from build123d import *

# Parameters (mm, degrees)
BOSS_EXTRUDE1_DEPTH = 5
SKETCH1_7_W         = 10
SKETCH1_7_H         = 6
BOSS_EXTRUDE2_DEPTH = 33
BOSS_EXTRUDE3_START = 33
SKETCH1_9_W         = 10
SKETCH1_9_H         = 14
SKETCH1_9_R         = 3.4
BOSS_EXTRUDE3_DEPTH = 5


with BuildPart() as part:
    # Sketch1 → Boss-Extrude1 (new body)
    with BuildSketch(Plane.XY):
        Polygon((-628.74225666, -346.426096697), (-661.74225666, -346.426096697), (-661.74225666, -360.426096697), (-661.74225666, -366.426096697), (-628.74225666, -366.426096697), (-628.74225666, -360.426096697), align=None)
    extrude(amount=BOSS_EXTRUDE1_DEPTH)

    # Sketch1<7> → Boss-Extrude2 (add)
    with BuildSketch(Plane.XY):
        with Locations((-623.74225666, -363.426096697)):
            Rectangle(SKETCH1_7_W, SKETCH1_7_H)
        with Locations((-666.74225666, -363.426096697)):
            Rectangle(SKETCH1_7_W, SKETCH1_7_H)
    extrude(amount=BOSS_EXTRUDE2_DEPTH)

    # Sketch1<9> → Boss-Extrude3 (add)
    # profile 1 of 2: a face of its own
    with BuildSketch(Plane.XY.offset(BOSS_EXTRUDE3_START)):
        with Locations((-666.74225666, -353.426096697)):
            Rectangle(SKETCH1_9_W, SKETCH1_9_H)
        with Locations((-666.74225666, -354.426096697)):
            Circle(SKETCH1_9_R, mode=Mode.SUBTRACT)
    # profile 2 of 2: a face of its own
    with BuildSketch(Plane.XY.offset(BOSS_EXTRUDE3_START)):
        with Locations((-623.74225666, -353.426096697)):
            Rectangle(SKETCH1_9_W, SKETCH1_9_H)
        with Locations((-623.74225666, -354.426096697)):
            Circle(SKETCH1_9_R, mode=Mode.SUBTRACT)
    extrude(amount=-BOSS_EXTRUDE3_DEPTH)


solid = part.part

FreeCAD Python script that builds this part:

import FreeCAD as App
import Part
import Sketcher
Q = App.Units.Quantity

doc = App.newDocument("Part")
body = doc.addObject("PartDesign::Body", "Body")

# Sketch on XY plane
sketch1 = body.newObject("Sketcher::SketchObject", "Sketch")
sketch1.AttachmentSupport = (doc.getObject("XY_Plane"), [""])
sketch1.MapMode = "FlatFace"
sketch1.addGeometry(Part.LineSegment(App.Vector(-628.742257, -346.426097, 0), App.Vector(-661.742257, -346.426097, 0)), False)
sketch1.addGeometry(Part.LineSegment(App.Vector(-661.742257, -346.426097, 0), App.Vector(-661.742257, -366.426097, 0)), False)
sketch1.addGeometry(Part.LineSegment(App.Vector(-661.742257, -366.426097, 0), App.Vector(-628.742257, -366.426097, 0)), False)
sketch1.addGeometry(Part.LineSegment(App.Vector(-628.742257, -366.426097, 0), App.Vector(-628.742257, -346.426097, 0)), False)
sketch1.addConstraint(Sketcher.Constraint("Coincident", 0, 2, 1, 1))
sketch1.addConstraint(Sketcher.Constraint("Coincident", 1, 2, 2, 1))
sketch1.addConstraint(Sketcher.Constraint("Coincident", 2, 2, 3, 1))
sketch1.addConstraint(Sketcher.Constraint("Coincident", 3, 2, 0, 1))
sketch1.addConstraint(Sketcher.Constraint("Horizontal", 0))
sketch1.addConstraint(Sketcher.Constraint("Vertical", 1))
sketch1.addConstraint(Sketcher.Constraint("Horizontal", 2))
sketch1.addConstraint(Sketcher.Constraint("Vertical", 3))
sketch1.addConstraint(Sketcher.Constraint("DistanceX", 0, 2, 0, 1, Q("33 mm")))
sketch1.addConstraint(Sketcher.Constraint("DistanceY", 1, 2, 1, 1, Q("20 mm")))
sketch1.addConstraint(Sketcher.Constraint("DistanceX", 0, 2, -1, 1, Q("661.742257 mm")))
sketch1.addConstraint(Sketcher.Constraint("DistanceY", 0, 2, -1, 1, Q("346.426097 mm")))
pad1 = body.newObject("PartDesign::Pad", "Pad")
pad1.Profile = sketch1
pad1.Length = 5

# Sketch on XY plane
sketch2 = body.newObject("Sketcher::SketchObject", "Sketch001")
sketch2.AttachmentSupport = (doc.getObject("XY_Plane"), [""])
sketch2.MapMode = "FlatFace"
sketch2.addGeometry(Part.LineSegment(App.Vector(-628.742257, -360.426097, 0), App.Vector(-628.742257, -366.426097, 0)), False)
sketch2.addGeometry(Part.LineSegment(App.Vector(-628.742257, -366.426097, 0), App.Vector(-618.742257, -366.426097, 0)), False)
sketch2.addGeometry(Part.LineSegment(App.Vector(-618.742257, -366.426097, 0), App.Vector(-618.742257, -360.426097, 0)), False)
sketch2.addGeometry(Part.LineSegment(App.Vector(-618.742257, -360.426097, 0), App.Vector(-628.742257, -360.426097, 0)), False)
sketch2.addGeometry(Part.LineSegment(App.Vector(-671.742257, -360.426097, 0), App.Vector(-671.742257, -366.426097, 0)), False)
sketch2.addGeometry(Part.LineSegment(App.Vector(-671.742257, -366.426097, 0), App.Vector(-661.742257, -366.426097, 0)), False)
sketch2.addGeometry(Part.LineSegment(App.Vector(-661.742257, -366.426097, 0), App.Vector(-661.742257, -360.426097, 0)), False)
sketch2.addGeometry(Part.LineSegment(App.Vector(-661.742257, -360.426097, 0), App.Vector(-671.742257, -360.426097, 0)), False)
sketch2.addConstraint(Sketcher.Constraint("Coincident", 0, 2, 1, 1))
sketch2.addConstraint(Sketcher.Constraint("Coincident", 1, 2, 2, 1))
sketch2.addConstraint(Sketcher.Constraint("Coincident", 2, 2, 3, 1))
sketch2.addConstraint(Sketcher.Constraint("Coincident", 3, 2, 0, 1))
sketch2.addConstraint(Sketcher.Constraint("Coincident", 4, 2, 5, 1))
sketch2.addConstraint(Sketcher.Constraint("Coincident", 5, 2, 6, 1))
sketch2.addConstraint(Sketcher.Constraint("Coincident", 6, 2, 7, 1))
sketch2.addConstraint(Sketcher.Constraint("Coincident", 7, 2, 4, 1))
sketch2.addConstraint(Sketcher.Constraint("Vertical", 0))
sketch2.addConstraint(Sketcher.Constraint("Horizontal", 1))
sketch2.addConstraint(Sketcher.Constraint("Vertical", 2))
sketch2.addConstraint(Sketcher.Constraint("Horizontal", 3))
sketch2.addConstraint(Sketcher.Constraint("Vertical", 4))
sketch2.addConstraint(Sketcher.Constraint("Horizontal", 5))
sketch2.addConstraint(Sketcher.Constraint("Vertical", 6))
sketch2.addConstraint(Sketcher.Constraint("Horizontal", 7))
sketch2.addConstraint(Sketcher.Constraint("Horizontal", 1, 2, 4, 2))
sketch2.addConstraint(Sketcher.Constraint("Horizontal", 3, 2, 6, 2))
sketch2.addConstraint(Sketcher.Constraint("Equal", 3, 5))
sketch2.addConstraint(Sketcher.Constraint("DistanceX", 1, 1, 1, 2, Q("10 mm")))
sketch2.addConstraint(Sketcher.Constraint("DistanceY", 0, 2, 0, 1, Q("6 mm")))
sketch2.addConstraint(Sketcher.Constraint("DistanceX", 4, 2, 0, 2, Q("43 mm")))
sketch2.addConstraint(Sketcher.Constraint("DistanceX", 0, 2, -1, 1, Q("628.742257 mm")))
sketch2.addConstraint(Sketcher.Constraint("DistanceY", 0, 2, -1, 1, Q("366.426097 mm")))
pad2 = body.newObject("PartDesign::Pad", "Pad001")
pad2.Profile = sketch2
pad2.Length = 33

# Sketch on XY plane
sketch3 = body.newObject("Sketcher::SketchObject", "Sketch002")
sketch3.AttachmentSupport = (doc.getObject("XY_Plane"), [""])
sketch3.MapMode = "FlatFace"
sketch3.AttachmentOffset = App.Placement(App.Vector(0, 0, 33), App.Rotation())
sketch3.addGeometry(Part.LineSegment(App.Vector(-671.742257, -346.426097, 0), App.Vector(-671.742257, -360.426097, 0)), False)
sketch3.addGeometry(Part.LineSegment(App.Vector(-671.742257, -360.426097, 0), App.Vector(-661.742257, -360.426097, 0)), False)
sketch3.addGeometry(Part.LineSegment(App.Vector(-661.742257, -360.426097, 0), App.Vector(-661.742257, -346.426097, 0)), False)
sketch3.addGeometry(Part.LineSegment(App.Vector(-661.742257, -346.426097, 0), App.Vector(-671.742257, -346.426097, 0)), False)
sketch3.addGeometry(Part.Circle(App.Vector(-666.742257, -354.426097, 0), App.Vector(0, 0, 1), 3.4), False)
sketch3.addGeometry(Part.LineSegment(App.Vector(-628.742257, -346.426097, 0), App.Vector(-628.742257, -360.426097, 0)), False)
sketch3.addGeometry(Part.LineSegment(App.Vector(-628.742257, -360.426097, 0), App.Vector(-618.742257, -360.426097, 0)), False)
sketch3.addGeometry(Part.LineSegment(App.Vector(-618.742257, -360.426097, 0), App.Vector(-618.742257, -346.426097, 0)), False)
sketch3.addGeometry(Part.LineSegment(App.Vector(-618.742257, -346.426097, 0), App.Vector(-628.742257, -346.426097, 0)), False)
sketch3.addGeometry(Part.Circle(App.Vector(-623.742257, -354.426097, 0), App.Vector(0, 0, 1), 3.4), False)
sketch3.addConstraint(Sketcher.Constraint("Coincident", 0, 2, 1, 1))
sketch3.addConstraint(Sketcher.Constraint("Coincident", 1, 2, 2, 1))
sketch3.addConstraint(Sketcher.Constraint("Coincident", 2, 2, 3, 1))
sketch3.addConstraint(Sketcher.Constraint("Coincident", 3, 2, 0, 1))
sketch3.addConstraint(Sketcher.Constraint("Coincident", 5, 2, 6, 1))
sketch3.addConstraint(Sketcher.Constraint("Coincident", 6, 2, 7, 1))
sketch3.addConstraint(Sketcher.Constraint("Coincident", 7, 2, 8, 1))
sketch3.addConstraint(Sketcher.Constraint("Coincident", 8, 2, 5, 1))
sketch3.addConstraint(Sketcher.Constraint("Vertical", 0))
sketch3.addConstraint(Sketcher.Constraint("Horizontal", 1))
sketch3.addConstraint(Sketcher.Constraint("Vertical", 2))
sketch3.addConstraint(Sketcher.Constraint("Horizontal", 3))
sketch3.addConstraint(Sketcher.Constraint("Vertical", 5))
sketch3.addConstraint(Sketcher.Constraint("Horizontal", 6))
sketch3.addConstraint(Sketcher.Constraint("Vertical", 7))
sketch3.addConstraint(Sketcher.Constraint("Horizontal", 8))
sketch3.addConstraint(Sketcher.Constraint("Equal", 4, 9))
sketch3.addConstraint(Sketcher.Constraint("Horizontal", 4, 3, 9, 3))
sketch3.addConstraint(Sketcher.Constraint("Horizontal", 1, 2, 5, 2))
sketch3.addConstraint(Sketcher.Constraint("Horizontal", 3, 2, 7, 2))
sketch3.addConstraint(Sketcher.Constraint("Equal", 3, 6))
sketch3.addConstraint(Sketcher.Constraint("Diameter", 4, Q("6.8 mm")))
sketch3.addConstraint(Sketcher.Constraint("DistanceX", 1, 1, 1, 2, Q("10 mm")))
sketch3.addConstraint(Sketcher.Constraint("DistanceY", 0, 2, 0, 1, Q("14 mm")))
sketch3.addConstraint(Sketcher.Constraint("DistanceX", 4, 3, 9, 3, Q("43 mm")))
sketch3.addConstraint(Sketcher.Constraint("DistanceX", 0, 2, 4, 3, Q("5 mm")))
sketch3.addConstraint(Sketcher.Constraint("DistanceY", 0, 2, 4, 3, Q("6 mm")))
sketch3.addConstraint(Sketcher.Constraint("DistanceX", 5, 2, 9, 3, Q("5 mm")))
sketch3.addConstraint(Sketcher.Constraint("DistanceX", 4, 3, -1, 1, Q("666.742257 mm")))
sketch3.addConstraint(Sketcher.Constraint("DistanceY", 4, 3, -1, 1, Q("354.426097 mm")))
pad3 = body.newObject("PartDesign::Pad", "Pad002")
pad3.Profile = sketch3
pad3.Length = 5
pad3.Reversed = True

doc.recompute()
